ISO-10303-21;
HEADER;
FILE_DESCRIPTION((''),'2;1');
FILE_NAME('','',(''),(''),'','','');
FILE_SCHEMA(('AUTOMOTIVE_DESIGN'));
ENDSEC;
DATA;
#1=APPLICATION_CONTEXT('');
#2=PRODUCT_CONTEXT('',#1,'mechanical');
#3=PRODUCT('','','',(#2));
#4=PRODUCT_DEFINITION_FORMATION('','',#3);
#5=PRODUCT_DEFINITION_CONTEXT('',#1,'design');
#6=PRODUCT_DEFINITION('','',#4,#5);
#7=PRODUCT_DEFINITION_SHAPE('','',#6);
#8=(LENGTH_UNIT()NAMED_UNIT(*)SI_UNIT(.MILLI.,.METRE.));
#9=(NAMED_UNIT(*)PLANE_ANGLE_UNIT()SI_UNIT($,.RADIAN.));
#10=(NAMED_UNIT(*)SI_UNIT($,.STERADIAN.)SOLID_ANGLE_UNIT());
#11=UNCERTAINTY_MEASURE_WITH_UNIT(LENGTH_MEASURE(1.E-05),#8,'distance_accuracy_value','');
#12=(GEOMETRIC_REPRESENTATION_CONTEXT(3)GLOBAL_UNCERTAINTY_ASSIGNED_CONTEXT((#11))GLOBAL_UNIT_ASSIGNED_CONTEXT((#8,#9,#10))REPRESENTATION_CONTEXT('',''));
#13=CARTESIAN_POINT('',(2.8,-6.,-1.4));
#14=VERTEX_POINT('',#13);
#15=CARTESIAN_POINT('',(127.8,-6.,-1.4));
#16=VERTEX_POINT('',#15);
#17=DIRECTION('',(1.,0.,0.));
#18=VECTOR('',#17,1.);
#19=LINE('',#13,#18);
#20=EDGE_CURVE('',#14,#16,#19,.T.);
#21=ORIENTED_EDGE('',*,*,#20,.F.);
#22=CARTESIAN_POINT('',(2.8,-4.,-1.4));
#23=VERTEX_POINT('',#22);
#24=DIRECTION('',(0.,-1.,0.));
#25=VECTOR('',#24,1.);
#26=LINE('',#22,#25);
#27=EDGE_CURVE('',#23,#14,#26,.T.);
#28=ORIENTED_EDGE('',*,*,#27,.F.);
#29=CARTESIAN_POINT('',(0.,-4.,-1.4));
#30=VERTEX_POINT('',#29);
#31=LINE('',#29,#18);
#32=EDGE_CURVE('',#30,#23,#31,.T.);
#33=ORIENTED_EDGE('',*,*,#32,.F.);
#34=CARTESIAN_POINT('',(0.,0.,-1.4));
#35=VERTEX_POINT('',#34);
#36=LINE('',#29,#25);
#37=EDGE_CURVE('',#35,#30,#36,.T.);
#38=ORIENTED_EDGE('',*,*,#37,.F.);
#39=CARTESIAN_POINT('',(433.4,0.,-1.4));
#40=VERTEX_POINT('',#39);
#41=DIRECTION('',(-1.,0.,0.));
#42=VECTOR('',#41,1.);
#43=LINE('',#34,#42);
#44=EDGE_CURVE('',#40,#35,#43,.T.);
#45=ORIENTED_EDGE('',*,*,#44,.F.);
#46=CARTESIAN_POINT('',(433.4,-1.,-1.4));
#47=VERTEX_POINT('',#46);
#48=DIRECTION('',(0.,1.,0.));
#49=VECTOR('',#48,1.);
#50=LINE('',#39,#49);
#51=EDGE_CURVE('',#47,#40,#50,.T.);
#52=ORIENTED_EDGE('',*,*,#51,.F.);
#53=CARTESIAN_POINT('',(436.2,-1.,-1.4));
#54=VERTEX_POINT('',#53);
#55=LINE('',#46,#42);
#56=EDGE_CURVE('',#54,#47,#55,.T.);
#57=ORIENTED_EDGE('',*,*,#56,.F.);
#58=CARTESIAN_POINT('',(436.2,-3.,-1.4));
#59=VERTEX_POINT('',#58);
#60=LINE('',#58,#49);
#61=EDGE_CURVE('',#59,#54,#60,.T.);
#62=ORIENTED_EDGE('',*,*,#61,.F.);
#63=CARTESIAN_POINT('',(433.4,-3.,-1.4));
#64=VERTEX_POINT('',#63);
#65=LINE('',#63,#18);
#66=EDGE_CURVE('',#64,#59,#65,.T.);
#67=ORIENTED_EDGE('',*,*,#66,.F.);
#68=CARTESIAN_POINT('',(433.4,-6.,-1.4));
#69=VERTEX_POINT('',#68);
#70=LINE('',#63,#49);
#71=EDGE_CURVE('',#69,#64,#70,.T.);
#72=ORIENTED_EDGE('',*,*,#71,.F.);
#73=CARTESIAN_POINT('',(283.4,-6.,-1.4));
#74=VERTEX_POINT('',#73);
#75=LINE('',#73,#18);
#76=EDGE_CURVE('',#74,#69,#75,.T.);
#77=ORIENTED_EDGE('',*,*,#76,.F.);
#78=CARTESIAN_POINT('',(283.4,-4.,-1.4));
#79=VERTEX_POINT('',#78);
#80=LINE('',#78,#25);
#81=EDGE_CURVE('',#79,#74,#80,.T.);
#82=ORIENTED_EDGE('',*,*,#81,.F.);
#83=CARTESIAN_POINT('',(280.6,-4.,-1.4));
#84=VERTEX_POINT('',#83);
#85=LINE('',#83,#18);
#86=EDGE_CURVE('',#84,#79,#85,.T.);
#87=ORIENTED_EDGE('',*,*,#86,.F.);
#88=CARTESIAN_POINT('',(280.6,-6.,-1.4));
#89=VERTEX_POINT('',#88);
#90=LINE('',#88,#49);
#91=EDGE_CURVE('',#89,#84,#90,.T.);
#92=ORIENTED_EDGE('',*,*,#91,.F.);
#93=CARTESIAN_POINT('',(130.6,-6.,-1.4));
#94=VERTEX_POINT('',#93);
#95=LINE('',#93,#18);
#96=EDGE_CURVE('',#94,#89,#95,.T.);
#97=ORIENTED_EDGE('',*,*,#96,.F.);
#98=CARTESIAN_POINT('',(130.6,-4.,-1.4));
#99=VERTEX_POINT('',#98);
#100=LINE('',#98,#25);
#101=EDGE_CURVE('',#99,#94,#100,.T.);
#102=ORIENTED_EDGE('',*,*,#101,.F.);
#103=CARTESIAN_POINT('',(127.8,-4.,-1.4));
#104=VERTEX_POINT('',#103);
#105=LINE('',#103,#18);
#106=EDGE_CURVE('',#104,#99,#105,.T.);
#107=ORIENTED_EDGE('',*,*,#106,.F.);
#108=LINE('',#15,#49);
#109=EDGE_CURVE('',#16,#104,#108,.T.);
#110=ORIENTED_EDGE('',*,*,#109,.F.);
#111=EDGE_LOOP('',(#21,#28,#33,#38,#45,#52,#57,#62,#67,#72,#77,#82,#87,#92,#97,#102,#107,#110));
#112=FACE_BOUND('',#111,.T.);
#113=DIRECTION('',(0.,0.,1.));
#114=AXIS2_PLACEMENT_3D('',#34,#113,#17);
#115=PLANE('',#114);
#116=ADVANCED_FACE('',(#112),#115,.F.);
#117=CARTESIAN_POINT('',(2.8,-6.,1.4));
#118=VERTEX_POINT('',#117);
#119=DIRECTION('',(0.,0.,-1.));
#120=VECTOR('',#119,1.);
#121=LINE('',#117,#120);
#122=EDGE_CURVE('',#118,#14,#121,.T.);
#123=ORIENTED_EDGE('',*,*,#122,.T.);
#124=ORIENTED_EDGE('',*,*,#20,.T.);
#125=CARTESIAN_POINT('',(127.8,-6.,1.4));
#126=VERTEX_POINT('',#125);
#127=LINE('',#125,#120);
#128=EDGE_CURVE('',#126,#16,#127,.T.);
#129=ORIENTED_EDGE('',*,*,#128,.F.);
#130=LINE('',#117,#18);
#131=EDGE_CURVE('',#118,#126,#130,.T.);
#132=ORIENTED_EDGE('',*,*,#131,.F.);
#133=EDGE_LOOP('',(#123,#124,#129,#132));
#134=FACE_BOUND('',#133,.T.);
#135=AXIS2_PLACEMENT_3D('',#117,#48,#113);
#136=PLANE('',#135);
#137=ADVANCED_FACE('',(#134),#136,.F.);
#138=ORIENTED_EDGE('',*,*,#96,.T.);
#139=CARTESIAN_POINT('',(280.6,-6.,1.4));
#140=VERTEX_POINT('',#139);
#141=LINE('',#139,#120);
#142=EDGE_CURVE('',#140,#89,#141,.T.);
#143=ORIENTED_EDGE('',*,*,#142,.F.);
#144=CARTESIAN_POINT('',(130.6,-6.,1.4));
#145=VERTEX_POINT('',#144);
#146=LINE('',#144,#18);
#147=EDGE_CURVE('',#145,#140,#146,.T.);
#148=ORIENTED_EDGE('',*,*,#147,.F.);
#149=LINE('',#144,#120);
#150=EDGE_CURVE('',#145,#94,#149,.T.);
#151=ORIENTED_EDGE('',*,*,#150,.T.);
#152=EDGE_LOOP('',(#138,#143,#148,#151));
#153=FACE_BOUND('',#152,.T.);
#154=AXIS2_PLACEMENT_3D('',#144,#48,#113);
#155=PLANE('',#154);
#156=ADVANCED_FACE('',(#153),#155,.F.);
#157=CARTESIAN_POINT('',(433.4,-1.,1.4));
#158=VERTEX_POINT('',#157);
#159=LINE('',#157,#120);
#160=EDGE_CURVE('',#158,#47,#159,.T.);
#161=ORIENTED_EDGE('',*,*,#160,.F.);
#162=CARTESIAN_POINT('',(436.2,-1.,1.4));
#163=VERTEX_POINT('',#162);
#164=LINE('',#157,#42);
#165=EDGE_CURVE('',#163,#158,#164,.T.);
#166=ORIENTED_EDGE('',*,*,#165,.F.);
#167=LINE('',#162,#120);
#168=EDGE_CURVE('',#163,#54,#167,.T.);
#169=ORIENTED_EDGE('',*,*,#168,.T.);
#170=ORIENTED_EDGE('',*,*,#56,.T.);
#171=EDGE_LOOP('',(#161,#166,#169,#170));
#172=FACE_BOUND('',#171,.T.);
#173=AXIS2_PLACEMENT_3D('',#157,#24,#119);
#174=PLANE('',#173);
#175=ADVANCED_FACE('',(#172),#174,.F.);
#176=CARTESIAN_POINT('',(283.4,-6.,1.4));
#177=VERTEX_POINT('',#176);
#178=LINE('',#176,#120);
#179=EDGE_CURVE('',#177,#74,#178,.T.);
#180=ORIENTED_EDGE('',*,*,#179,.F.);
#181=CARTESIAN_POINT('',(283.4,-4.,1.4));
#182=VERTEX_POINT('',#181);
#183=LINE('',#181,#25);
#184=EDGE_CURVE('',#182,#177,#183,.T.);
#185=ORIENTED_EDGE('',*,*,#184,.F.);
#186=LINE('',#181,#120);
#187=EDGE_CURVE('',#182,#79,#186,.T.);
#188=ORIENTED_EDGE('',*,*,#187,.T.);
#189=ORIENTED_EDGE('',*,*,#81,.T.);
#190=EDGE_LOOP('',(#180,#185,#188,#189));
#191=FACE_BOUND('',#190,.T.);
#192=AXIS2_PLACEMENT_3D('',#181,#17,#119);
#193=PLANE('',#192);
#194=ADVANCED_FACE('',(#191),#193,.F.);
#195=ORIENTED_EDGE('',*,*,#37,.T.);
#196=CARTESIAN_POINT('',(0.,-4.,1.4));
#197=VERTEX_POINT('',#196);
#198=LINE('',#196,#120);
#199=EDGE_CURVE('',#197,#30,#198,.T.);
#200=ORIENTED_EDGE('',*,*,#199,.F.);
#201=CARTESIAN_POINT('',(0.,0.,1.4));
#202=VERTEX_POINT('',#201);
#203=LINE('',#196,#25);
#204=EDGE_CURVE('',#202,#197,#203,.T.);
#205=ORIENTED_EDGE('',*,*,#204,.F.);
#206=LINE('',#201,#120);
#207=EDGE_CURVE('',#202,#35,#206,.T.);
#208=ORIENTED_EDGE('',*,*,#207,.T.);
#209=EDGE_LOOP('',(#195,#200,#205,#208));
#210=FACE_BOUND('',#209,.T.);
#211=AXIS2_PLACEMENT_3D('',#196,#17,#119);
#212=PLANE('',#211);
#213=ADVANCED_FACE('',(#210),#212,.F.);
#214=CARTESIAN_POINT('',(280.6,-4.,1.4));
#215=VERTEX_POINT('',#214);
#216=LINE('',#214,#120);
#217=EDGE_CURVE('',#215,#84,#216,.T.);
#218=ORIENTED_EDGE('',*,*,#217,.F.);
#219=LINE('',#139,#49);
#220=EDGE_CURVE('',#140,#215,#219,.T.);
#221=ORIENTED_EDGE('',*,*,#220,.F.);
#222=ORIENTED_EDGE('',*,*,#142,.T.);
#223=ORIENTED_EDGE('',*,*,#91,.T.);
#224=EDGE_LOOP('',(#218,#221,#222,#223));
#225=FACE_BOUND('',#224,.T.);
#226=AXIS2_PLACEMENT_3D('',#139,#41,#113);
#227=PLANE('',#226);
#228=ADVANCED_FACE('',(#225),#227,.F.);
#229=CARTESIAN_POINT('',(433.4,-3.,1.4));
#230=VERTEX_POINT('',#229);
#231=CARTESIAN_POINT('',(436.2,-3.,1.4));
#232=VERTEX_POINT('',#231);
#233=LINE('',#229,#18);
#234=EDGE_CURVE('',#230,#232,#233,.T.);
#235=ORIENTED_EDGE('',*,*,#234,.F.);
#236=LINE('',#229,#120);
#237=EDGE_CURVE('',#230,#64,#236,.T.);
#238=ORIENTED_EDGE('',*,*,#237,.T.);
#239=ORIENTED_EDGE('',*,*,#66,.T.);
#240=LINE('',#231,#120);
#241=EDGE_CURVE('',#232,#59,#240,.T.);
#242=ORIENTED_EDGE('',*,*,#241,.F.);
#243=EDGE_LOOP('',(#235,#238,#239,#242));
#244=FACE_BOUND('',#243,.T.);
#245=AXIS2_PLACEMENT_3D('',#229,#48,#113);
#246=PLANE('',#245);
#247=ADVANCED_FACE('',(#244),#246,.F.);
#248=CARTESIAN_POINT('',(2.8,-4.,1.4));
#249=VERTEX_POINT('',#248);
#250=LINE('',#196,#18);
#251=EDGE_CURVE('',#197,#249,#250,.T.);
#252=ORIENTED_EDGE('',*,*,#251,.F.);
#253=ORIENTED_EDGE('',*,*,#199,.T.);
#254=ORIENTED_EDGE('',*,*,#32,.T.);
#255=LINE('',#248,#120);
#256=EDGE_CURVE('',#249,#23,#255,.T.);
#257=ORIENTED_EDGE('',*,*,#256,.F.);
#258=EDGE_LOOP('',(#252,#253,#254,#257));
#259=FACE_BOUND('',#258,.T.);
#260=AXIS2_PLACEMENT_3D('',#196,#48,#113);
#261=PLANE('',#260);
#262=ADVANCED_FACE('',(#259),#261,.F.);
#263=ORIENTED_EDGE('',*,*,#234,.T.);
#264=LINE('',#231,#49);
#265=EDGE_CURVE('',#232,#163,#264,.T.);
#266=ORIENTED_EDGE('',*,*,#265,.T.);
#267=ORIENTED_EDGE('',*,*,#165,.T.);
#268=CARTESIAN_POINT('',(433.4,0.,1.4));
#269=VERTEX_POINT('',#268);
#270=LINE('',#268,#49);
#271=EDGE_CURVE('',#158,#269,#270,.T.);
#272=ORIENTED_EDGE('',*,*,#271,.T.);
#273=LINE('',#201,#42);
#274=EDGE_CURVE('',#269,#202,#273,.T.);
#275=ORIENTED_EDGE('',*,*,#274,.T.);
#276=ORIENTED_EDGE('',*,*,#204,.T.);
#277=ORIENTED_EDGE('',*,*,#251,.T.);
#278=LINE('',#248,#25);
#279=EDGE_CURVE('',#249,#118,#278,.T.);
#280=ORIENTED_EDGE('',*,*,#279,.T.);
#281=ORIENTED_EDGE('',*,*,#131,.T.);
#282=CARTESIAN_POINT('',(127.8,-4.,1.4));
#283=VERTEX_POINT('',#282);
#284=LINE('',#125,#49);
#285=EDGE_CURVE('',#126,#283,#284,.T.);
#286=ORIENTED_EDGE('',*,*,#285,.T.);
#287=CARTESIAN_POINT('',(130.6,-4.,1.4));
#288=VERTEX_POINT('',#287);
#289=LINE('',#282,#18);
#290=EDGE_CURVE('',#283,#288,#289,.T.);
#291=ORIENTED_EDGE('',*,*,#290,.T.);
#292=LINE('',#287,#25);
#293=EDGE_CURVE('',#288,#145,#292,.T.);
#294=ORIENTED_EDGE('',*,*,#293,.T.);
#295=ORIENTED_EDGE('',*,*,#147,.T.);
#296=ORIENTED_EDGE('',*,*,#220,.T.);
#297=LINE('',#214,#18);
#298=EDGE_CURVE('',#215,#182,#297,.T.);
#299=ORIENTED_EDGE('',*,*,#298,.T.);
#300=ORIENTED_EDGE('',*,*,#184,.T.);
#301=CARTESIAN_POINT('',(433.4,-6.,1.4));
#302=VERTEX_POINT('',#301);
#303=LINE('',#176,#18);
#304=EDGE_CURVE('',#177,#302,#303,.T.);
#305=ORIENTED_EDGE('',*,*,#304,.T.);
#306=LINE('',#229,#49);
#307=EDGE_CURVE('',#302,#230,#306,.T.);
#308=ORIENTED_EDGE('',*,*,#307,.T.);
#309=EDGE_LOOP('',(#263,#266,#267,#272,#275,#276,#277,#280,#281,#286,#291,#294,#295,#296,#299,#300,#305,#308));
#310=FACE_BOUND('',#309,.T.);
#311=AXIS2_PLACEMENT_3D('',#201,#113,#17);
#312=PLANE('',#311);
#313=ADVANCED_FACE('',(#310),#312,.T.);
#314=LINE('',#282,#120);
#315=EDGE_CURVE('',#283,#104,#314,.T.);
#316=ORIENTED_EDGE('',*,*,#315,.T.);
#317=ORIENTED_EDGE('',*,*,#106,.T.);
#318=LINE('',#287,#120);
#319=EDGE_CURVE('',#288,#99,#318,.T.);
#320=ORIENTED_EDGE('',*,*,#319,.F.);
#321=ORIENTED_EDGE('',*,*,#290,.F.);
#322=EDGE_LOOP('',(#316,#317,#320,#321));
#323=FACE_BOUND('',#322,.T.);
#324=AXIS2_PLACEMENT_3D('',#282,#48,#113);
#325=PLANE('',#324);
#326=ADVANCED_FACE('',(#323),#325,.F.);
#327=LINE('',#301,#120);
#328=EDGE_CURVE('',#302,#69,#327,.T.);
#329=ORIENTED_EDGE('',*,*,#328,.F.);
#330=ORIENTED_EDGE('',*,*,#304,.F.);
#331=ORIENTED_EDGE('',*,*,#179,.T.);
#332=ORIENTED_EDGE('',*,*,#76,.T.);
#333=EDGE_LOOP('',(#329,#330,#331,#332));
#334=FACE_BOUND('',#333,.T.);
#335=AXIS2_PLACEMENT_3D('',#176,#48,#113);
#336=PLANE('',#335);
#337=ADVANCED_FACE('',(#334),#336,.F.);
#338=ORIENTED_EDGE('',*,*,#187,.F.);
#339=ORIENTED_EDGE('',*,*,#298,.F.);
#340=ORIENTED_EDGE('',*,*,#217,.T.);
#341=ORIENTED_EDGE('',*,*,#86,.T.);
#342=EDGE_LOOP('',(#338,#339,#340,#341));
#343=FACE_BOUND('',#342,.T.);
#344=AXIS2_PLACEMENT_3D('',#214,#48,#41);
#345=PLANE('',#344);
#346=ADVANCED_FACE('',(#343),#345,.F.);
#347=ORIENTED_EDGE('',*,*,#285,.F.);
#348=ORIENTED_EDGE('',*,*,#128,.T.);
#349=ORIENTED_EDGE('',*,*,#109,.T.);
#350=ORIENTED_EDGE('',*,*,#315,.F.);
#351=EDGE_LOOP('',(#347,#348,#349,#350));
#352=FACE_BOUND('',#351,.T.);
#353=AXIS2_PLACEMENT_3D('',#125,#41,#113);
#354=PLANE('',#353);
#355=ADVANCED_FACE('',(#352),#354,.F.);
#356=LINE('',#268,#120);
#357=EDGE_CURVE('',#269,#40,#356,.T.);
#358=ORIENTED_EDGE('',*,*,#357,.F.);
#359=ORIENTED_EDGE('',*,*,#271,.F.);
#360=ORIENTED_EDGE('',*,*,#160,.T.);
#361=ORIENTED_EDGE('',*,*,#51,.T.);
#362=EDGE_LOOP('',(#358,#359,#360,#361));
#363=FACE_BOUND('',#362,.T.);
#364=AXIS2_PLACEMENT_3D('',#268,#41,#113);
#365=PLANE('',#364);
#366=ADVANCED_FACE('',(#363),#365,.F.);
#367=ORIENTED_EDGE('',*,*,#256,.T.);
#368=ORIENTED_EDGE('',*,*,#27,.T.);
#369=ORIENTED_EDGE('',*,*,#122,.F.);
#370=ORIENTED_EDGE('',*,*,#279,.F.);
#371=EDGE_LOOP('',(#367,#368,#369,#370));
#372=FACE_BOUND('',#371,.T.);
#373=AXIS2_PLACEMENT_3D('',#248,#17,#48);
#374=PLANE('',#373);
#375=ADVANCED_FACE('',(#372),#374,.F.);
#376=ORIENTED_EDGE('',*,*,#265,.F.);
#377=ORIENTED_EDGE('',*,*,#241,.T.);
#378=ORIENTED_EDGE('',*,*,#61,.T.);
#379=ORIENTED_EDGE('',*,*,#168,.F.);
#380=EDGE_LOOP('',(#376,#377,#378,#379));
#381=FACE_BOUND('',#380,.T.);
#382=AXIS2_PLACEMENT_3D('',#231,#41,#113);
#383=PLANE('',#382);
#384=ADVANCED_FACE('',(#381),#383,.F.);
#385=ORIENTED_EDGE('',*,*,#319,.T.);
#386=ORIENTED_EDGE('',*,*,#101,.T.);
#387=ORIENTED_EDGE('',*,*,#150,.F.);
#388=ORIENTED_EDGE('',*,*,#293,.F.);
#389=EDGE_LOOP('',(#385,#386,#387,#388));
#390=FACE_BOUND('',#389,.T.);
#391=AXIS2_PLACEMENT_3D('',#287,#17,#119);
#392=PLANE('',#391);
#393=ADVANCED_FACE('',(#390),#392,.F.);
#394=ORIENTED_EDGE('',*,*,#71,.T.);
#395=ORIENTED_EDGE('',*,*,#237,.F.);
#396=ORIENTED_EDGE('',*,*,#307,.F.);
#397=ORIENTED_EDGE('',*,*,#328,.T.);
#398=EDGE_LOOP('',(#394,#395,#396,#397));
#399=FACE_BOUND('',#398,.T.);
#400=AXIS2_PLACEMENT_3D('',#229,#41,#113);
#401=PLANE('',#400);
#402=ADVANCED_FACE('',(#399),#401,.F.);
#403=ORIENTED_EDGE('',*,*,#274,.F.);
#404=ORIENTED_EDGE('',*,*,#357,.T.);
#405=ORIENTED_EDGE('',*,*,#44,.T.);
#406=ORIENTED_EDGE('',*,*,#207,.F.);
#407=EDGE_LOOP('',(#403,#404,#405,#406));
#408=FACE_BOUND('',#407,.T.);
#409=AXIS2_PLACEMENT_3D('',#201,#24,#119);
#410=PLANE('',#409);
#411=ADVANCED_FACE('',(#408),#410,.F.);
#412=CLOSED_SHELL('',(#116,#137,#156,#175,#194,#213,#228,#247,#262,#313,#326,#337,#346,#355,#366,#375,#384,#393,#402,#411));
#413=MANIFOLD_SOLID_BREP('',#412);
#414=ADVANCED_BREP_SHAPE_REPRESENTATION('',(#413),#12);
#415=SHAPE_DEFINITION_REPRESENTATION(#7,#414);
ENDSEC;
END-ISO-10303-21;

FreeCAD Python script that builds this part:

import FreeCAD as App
import Part
import Sketcher

V = App.Vector


def add_polygon(sketch, points):
    """Adds a closed chain of lines whose ends are joined by coincident constraints."""
    first, n = sketch.GeometryCount, len(points)
    for a, b in zip(points, points[1:] + points[:1]):
        sketch.addGeometry(Part.LineSegment(App.Vector(*a, 0), App.Vector(*b, 0)), False)
    for i in range(n):
        sketch.addConstraint(Sketcher.Constraint("Coincident", first + i, 2, first + (i + 1) % n, 1))

doc = App.newDocument("Part")
body = doc.addObject("PartDesign::Body", "Body")

# Sketch on XY plane
sketch1 = body.newObject("Sketcher::SketchObject", "Sketch")
sketch1.AttachmentSupport = (doc.getObject("XY_Plane"), [""])
sketch1.MapMode = "FlatFace"
add_polygon(sketch1, [(0, -4), (2.8, -4), (2.8, -6), (127.8, -6), (127.8, -4), (130.6, -4), (130.6, -6), (280.6, -6), (280.6, -4), (283.4, -4), (283.4, -6), (433.4, -6), (433.4, -3), (436.2, -3), (436.2, -1), (433.4, -1), (433.4, 0), (0, 0)])  # lines 0-17
sketch1.addConstraint([
    Sketcher.Constraint("Horizontal", 0),
    Sketcher.Constraint("Vertical", 1),
    Sketcher.Constraint("Horizontal", 2),
    Sketcher.Constraint("Vertical", 3),
    Sketcher.Constraint("Horizontal", 4),
    Sketcher.Constraint("Vertical", 5),
    Sketcher.Constraint("Horizontal", 6),
    Sketcher.Constraint("Vertical", 7),
    Sketcher.Constraint("Horizontal", 8),
    Sketcher.Constraint("Vertical", 9),
    Sketcher.Constraint("Horizontal", 10),
    Sketcher.Constraint("Vertical", 11),
    Sketcher.Constraint("Horizontal", 12),
    Sketcher.Constraint("Vertical", 13),
    Sketcher.Constraint("Horizontal", 14),
    Sketcher.Constraint("Vertical", 15),
    Sketcher.Constraint("Horizontal", 16),
    Sketcher.Constraint("Vertical", 17),
    Sketcher.Constraint("Coincident", 16, 2, -1, 1),
    Sketcher.Constraint("Horizontal", 0, 2, 3, 2),
    Sketcher.Constraint("Horizontal", 2, 2, 5, 2),
    Sketcher.Constraint("Horizontal", 4, 2, 7, 2),
    Sketcher.Constraint("Horizontal", 6, 2, 9, 2),
    Sketcher.Constraint("Vertical", 11, 2, 14, 2),
    Sketcher.Constraint("Equal", 0, 4),
    Sketcher.Constraint("Equal", 4, 8),
    Sketcher.Constraint("Equal", 6, 10),
    Sketcher.Constraint("Equal", 8, 12),
    Sketcher.Constraint("Equal", 9, 13),
    Sketcher.Constraint("DistanceX", 2, 1, 2, 2, 125.0),
    Sketcher.Constraint("DistanceX", 6, 1, 6, 2, 150.0),
    Sketcher.Constraint("DistanceY", 1, 2, 1, 1, 2.0),
    Sketcher.Constraint("DistanceY", 11, 1, 11, 2, 3.0),
    Sketcher.Constraint("DistanceY", 15, 1, 15, 2, 1.0),
    Sketcher.Constraint("DistanceX", 0, 1, 0, 2, 2.8),
])
pad1 = body.newObject("PartDesign::Pad", "Pad")
pad1.Profile = sketch1
pad1.Length = 2.8
pad1.Midplane = True

doc.recompute()
